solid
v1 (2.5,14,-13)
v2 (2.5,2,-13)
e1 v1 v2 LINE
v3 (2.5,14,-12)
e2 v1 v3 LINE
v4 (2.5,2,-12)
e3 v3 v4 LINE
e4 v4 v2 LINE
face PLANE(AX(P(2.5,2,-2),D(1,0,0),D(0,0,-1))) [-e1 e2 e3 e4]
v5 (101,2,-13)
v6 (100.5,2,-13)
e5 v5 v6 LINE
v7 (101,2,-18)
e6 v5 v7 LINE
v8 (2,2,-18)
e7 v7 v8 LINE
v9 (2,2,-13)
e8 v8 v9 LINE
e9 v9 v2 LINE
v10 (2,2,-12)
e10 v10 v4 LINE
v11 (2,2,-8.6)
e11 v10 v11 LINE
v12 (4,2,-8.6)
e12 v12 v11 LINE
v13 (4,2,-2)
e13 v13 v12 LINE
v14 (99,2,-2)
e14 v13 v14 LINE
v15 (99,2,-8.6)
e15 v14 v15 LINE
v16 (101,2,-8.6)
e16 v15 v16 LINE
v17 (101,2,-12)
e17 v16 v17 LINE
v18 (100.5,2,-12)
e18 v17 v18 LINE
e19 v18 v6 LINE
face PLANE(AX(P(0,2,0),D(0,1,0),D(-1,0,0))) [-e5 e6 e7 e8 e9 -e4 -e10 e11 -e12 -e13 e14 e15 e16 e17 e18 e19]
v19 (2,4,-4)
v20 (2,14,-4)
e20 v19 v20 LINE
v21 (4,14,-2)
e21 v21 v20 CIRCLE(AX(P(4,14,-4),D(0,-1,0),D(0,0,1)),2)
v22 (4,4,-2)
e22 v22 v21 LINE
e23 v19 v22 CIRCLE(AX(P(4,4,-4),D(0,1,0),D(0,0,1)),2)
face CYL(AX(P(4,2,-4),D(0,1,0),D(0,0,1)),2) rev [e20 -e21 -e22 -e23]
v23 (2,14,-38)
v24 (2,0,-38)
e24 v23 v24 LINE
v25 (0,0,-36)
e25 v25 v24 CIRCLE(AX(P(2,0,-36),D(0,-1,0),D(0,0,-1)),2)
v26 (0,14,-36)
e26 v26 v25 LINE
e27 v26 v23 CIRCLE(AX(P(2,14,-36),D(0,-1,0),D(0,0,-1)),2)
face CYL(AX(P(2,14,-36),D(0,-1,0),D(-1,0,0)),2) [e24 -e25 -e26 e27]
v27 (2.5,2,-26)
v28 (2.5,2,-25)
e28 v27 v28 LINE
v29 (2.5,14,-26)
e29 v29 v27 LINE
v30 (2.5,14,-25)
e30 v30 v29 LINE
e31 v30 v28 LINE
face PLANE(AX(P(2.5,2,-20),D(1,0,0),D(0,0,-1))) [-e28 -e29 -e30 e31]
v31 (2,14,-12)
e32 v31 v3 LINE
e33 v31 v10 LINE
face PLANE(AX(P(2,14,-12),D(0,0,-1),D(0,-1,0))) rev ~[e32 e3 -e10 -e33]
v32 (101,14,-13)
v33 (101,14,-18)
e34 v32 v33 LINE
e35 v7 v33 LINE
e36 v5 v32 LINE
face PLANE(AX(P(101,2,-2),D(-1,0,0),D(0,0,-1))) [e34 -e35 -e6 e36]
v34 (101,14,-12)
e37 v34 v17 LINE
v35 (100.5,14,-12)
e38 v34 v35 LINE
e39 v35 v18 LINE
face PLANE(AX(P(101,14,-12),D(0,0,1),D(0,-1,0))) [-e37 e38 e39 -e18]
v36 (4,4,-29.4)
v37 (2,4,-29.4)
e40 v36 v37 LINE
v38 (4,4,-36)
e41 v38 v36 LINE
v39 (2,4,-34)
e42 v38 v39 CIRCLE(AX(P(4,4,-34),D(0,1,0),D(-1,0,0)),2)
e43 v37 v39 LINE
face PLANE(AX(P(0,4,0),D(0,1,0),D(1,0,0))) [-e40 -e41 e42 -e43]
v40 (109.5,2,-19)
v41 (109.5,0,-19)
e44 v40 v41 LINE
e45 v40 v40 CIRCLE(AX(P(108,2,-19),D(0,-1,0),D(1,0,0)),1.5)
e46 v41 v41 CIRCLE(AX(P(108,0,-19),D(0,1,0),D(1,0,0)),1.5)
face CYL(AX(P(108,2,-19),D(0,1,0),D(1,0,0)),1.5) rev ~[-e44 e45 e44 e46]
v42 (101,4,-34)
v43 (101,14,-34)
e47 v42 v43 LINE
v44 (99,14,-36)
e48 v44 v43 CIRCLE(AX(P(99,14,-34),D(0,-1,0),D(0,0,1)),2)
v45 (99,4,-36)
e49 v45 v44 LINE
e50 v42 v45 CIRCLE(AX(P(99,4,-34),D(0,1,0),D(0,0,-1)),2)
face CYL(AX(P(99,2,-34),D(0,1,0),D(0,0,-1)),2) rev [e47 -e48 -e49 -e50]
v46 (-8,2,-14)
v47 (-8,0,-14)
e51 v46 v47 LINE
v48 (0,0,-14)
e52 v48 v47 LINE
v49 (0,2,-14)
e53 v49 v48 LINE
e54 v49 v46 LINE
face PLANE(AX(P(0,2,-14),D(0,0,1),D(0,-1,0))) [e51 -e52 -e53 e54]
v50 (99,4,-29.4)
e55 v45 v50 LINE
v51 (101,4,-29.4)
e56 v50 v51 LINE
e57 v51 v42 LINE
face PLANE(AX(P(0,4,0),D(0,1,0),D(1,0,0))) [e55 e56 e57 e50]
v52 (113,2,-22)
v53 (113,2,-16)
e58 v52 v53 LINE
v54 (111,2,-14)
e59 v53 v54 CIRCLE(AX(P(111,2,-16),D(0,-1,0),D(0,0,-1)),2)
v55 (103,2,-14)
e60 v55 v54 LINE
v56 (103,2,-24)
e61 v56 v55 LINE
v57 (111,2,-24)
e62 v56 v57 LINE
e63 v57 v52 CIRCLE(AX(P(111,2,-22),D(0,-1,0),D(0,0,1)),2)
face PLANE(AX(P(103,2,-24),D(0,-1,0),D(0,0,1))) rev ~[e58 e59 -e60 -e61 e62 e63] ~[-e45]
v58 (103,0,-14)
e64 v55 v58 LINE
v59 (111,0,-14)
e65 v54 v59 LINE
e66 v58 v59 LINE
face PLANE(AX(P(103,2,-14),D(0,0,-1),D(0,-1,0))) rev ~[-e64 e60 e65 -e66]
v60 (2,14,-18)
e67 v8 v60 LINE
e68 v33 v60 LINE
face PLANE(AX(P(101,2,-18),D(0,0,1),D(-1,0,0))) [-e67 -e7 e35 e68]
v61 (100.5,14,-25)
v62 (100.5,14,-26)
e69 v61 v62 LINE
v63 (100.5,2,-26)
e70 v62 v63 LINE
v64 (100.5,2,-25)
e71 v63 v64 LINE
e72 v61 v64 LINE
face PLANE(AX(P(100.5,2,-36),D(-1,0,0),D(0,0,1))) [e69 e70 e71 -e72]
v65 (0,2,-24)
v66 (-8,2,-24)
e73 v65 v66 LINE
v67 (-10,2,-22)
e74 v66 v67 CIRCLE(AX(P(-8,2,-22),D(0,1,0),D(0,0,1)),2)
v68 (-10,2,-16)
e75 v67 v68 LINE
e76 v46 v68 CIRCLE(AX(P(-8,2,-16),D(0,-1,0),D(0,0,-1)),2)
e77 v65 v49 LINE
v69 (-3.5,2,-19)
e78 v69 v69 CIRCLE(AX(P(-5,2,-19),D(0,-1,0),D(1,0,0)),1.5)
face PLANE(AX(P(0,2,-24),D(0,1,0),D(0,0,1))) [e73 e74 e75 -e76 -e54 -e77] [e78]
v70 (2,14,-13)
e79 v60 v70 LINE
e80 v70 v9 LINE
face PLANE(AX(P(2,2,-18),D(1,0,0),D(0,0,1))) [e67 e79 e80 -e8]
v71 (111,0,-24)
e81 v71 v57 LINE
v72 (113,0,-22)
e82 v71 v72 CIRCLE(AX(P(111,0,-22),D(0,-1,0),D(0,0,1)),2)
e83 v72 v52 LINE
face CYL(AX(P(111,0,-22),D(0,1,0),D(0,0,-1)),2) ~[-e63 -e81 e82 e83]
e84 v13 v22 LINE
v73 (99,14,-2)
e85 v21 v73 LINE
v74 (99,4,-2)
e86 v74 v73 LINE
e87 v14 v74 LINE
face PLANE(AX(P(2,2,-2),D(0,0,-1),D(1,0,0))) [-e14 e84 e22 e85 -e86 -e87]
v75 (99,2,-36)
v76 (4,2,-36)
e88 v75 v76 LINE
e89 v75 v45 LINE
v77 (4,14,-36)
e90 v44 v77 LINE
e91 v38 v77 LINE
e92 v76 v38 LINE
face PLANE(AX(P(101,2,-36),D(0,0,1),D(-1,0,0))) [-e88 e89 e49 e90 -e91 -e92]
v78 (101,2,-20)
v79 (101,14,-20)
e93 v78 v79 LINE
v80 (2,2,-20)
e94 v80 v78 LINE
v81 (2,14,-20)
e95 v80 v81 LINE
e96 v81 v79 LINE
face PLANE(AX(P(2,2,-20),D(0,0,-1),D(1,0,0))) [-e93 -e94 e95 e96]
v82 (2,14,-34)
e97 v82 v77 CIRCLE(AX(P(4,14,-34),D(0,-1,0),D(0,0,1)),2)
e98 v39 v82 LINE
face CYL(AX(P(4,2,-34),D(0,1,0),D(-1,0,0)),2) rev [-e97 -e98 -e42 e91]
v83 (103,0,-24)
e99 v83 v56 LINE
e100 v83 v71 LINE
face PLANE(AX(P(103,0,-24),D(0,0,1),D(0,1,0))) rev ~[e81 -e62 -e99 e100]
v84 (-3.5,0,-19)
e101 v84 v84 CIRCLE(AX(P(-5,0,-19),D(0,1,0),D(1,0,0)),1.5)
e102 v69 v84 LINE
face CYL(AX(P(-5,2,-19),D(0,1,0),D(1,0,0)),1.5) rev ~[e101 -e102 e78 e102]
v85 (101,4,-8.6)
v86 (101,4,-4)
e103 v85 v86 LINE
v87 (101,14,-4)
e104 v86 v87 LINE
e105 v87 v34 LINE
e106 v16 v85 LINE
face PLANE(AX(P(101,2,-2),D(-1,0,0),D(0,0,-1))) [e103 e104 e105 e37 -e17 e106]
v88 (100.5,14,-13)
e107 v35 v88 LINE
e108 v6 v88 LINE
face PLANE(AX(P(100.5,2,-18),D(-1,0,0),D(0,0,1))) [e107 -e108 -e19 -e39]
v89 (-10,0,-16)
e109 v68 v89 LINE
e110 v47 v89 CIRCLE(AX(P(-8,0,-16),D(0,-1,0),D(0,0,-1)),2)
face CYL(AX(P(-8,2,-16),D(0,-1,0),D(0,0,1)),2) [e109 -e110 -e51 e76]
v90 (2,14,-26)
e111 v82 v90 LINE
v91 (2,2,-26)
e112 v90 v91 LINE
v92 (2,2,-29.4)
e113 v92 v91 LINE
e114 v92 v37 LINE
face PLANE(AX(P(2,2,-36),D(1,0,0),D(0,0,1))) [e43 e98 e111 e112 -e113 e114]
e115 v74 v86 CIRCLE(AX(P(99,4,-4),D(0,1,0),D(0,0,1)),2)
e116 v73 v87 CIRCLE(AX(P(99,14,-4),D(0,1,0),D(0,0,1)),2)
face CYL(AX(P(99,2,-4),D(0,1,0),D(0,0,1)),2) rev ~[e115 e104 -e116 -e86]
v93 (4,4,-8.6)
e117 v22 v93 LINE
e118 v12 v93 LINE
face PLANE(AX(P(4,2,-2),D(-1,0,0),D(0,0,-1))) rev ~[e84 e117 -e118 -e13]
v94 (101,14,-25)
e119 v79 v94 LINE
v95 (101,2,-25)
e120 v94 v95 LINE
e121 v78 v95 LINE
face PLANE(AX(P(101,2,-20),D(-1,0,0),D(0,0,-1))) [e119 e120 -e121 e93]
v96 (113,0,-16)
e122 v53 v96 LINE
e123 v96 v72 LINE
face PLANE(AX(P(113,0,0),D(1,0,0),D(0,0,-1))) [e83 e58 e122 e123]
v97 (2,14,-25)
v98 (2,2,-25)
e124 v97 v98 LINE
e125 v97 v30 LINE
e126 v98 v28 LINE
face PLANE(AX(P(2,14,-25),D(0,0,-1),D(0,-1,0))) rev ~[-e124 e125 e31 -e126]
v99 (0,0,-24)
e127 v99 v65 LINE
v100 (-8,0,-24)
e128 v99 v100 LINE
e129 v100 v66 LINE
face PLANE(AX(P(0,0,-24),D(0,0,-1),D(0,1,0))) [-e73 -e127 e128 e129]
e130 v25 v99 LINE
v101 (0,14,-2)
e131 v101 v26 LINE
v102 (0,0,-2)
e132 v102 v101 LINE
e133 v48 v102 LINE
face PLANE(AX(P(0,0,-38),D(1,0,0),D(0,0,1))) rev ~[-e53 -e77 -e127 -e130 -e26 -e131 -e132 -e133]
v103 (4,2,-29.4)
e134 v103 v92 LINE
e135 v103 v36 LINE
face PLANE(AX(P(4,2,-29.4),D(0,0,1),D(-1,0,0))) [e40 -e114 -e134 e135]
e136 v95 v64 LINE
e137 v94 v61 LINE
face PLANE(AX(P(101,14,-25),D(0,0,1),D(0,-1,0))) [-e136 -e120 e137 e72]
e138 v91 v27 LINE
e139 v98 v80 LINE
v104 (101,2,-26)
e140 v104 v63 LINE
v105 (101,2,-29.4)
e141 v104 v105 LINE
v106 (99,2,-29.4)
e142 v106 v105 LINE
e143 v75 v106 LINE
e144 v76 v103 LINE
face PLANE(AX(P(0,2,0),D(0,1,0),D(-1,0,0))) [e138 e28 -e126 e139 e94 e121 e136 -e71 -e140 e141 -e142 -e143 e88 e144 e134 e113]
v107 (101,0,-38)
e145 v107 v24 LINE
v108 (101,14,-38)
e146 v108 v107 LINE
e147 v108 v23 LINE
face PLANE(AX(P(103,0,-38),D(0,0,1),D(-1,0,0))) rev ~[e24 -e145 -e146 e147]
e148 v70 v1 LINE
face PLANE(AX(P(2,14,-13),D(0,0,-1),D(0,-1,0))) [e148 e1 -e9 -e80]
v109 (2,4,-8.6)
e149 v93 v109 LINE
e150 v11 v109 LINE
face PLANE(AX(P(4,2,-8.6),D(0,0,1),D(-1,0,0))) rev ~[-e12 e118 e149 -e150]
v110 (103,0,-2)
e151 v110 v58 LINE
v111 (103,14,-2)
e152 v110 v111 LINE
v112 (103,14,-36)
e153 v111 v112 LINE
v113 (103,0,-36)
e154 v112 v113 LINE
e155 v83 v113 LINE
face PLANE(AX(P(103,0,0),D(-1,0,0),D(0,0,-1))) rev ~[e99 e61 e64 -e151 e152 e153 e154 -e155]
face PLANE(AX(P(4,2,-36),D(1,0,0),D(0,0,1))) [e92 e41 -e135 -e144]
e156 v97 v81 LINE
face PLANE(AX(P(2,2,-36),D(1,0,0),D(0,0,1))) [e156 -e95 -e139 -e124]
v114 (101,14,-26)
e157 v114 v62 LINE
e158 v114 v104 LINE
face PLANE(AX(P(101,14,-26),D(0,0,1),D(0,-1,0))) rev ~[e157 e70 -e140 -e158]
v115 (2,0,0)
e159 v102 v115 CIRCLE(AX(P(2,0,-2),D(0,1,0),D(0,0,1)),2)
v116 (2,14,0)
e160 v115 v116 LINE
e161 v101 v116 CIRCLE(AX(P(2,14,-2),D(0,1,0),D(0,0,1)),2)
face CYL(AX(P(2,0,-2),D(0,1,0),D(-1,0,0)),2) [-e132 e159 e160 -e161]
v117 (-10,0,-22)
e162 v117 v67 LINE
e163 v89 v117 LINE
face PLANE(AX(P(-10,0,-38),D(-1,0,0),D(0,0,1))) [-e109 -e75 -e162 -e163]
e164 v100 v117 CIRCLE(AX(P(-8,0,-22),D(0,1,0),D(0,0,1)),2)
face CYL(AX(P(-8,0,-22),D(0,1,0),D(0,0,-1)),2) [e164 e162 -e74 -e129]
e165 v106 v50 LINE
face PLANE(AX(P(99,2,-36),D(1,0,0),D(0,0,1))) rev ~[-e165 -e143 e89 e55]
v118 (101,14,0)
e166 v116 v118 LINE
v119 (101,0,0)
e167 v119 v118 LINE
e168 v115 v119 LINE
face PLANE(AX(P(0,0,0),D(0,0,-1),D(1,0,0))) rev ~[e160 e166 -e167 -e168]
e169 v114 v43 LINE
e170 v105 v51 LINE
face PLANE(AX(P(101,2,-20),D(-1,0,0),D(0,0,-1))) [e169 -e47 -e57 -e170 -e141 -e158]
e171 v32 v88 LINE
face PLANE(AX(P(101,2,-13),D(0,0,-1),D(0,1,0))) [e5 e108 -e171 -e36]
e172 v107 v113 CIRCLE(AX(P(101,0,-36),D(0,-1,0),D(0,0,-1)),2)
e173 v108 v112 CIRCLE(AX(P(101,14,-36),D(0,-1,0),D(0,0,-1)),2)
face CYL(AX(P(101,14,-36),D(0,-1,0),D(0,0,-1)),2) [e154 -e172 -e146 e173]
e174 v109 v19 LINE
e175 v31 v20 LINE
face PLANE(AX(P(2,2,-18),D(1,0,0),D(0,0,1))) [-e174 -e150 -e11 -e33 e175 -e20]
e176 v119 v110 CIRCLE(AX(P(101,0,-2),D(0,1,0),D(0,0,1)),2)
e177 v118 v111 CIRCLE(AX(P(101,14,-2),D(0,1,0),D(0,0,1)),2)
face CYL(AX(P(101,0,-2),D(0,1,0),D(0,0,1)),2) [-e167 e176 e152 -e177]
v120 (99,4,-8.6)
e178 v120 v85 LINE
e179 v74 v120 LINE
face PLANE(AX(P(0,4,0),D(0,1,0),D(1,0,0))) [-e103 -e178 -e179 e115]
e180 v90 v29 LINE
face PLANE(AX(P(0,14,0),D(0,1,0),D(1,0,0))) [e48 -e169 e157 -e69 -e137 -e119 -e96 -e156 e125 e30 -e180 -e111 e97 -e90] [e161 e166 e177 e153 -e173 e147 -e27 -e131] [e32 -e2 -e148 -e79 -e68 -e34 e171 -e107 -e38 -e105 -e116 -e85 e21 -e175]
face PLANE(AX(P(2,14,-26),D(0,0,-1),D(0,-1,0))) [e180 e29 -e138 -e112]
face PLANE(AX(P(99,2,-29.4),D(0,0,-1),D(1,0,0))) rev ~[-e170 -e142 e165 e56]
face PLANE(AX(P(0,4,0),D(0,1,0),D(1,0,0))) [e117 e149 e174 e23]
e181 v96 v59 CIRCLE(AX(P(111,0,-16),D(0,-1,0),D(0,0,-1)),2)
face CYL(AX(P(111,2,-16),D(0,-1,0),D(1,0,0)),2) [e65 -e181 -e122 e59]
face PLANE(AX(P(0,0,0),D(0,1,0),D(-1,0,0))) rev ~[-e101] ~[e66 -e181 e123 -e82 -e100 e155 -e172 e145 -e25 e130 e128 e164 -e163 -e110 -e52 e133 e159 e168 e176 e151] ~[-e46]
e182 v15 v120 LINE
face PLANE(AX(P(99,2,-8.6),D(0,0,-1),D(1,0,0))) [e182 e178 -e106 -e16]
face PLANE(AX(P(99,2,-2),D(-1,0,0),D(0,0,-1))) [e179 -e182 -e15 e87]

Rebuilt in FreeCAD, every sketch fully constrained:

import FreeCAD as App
import Part
import Sketcher
Q = App.Units.Quantity


def edges_at(feature, points):
    """Names of the edges that pass closest to the given points."""
    edges = feature.Shape.Edges
    near = lambda p: min(range(len(edges)), key=lambda i: edges[i].distToShape(Part.Vertex(*p))[0])
    return sorted({f"Edge{near(p) + 1}" for p in points})

doc = App.newDocument("Part")
body = doc.addObject("PartDesign::Body", "Body")

# Sketch on XZ plane
sketch1 = doc.addObject("Sketcher::SketchObject", "Sketch")
body.addObject(sketch1)
sketch1.AttachmentSupport = (doc.XZ_Plane, [""])
sketch1.MapMode = "FlatFace"
sketch1.addGeometry(Part.LineSegment(App.Vector(0, -38, 0), App.Vector(0, 0, 0)), False)
sketch1.addGeometry(Part.LineSegment(App.Vector(0, 0, 0), App.Vector(103, 0, 0)), False)
sketch1.addGeometry(Part.LineSegment(App.Vector(103, 0, 0), App.Vector(103, -38, 0)), False)
sketch1.addGeometry(Part.LineSegment(App.Vector(103, -38, 0), App.Vector(0, -38, 0)), False)
sketch1.addConstraint(Sketcher.Constraint("Coincident", 0, 2, 1, 1))
sketch1.addConstraint(Sketcher.Constraint("Coincident", 1, 2, 2, 1))
sketch1.addConstraint(Sketcher.Constraint("Coincident", 2, 2, 3, 1))
sketch1.addConstraint(Sketcher.Constraint("Coincident", 3, 2, 0, 1))
sketch1.addConstraint(Sketcher.Constraint("Vertical", 0))
sketch1.addConstraint(Sketcher.Constraint("Horizontal", 1))
sketch1.addConstraint(Sketcher.Constraint("Vertical", 2))
sketch1.addConstraint(Sketcher.Constraint("Horizontal", 3))
sketch1.addConstraint(Sketcher.Constraint("Coincident", 0, 2, -1, 1))
sketch1.addConstraint(Sketcher.Constraint("DistanceX", 1, 1, 1, 2, Q("103 mm")))
sketch1.addConstraint(Sketcher.Constraint("DistanceY", 0, 1, 0, 2, Q("38 mm")))
pad1 = doc.addObject("PartDesign::Pad", "Pad")
body.addObject(pad1)
pad1.Profile = sketch1
pad1.Length = 2
pad1.Reversed = True

# Sketch on XZ plane
sketch2 = doc.addObject("Sketcher::SketchObject", "Sketch001")
body.addObject(sketch2)
sketch2.AttachmentSupport = (doc.XZ_Plane, [""])
sketch2.MapMode = "FlatFace"
sketch2.AttachmentOffset = App.Placement(App.Vector(0, 0, -2), App.Rotation())
sketch2.addGeometry(Part.LineSegment(App.Vector(0, 0, 0), App.Vector(103, 0, 0)), False)
sketch2.addGeometry(Part.LineSegment(App.Vector(103, 0, 0), App.Vector(103, -38, 0)), False)
sketch2.addGeometry(Part.LineSegment(App.Vector(103, -38, 0), App.Vector(0, -38, 0)), False)
sketch2.addGeometry(Part.LineSegment(App.Vector(0, -38, 0), App.Vector(0, 0, 0)), False)
sketch2.addGeometry(Part.LineSegment(App.Vector(101, -2, 0), App.Vector(2, -2, 0)), False)
sketch2.addGeometry(Part.LineSegment(App.Vector(2, -2, 0), App.Vector(2, -18, 0)), False)
sketch2.addGeometry(Part.LineSegment(App.Vector(2, -18, 0), App.Vector(101, -18, 0)), False)
sketch2.addGeometry(Part.LineSegment(App.Vector(101, -18, 0), App.Vector(101, -2, 0)), False)
sketch2.addGeometry(Part.LineSegment(App.Vector(2, -20, 0), App.Vector(2, -36, 0)), False)
sketch2.addGeometry(Part.LineSegment(App.Vector(2, -36, 0), App.Vector(101, -36, 0)), False)
sketch2.addGeometry(Part.LineSegment(App.Vector(101, -36, 0), App.Vector(101, -20, 0)), False)
sketch2.addGeometry(Part.LineSegment(App.Vector(101, -20, 0), App.Vector(2, -20, 0)), False)
sketch2.addConstraint(Sketcher.Constraint("Coincident", 0, 2, 1, 1))
sketch2.addConstraint(Sketcher.Constraint("Coincident", 1, 2, 2, 1))
sketch2.addConstraint(Sketcher.Constraint("Coincident", 2, 2, 3, 1))
sketch2.addConstraint(Sketcher.Constraint("Coincident", 3, 2, 0, 1))
sketch2.addConstraint(Sketcher.Constraint("Coincident", 4, 2, 5, 1))
sketch2.addConstraint(Sketcher.Constraint("Coincident", 5, 2, 6, 1))
sketch2.addConstraint(Sketcher.Constraint("Coincident", 6, 2, 7, 1))
sketch2.addConstraint(Sketcher.Constraint("Coincident", 7, 2, 4, 1))
sketch2.addConstraint(Sketcher.Constraint("Coincident", 8, 2, 9, 1))
sketch2.addConstraint(Sketcher.Constraint("Coincident", 9, 2, 10, 1))
sketch2.addConstraint(Sketcher.Constraint("Coincident", 10, 2, 11, 1))
sketch2.addConstraint(Sketcher.Constraint("Coincident", 11, 2, 8, 1))
sketch2.addConstraint(Sketcher.Constraint("Horizontal", 0))
sketch2.addConstraint(Sketcher.Constraint("Vertical", 1))
sketch2.addConstraint(Sketcher.Constraint("Horizontal", 2))
sketch2.addConstraint(Sketcher.Constraint("Vertical", 3))
sketch2.addConstraint(Sketcher.Constraint("Horizontal", 4))
sketch2.addConstraint(Sketcher.Constraint("Vertical", 5))
sketch2.addConstraint(Sketcher.Constraint("Horizontal", 6))
sketch2.addConstraint(Sketcher.Constraint("Vertical", 7))
sketch2.addConstraint(Sketcher.Constraint("Vertical", 8))
sketch2.addConstraint(Sketcher.Constraint("Horizontal", 9))
sketch2.addConstraint(Sketcher.Constraint("Vertical", 10))
sketch2.addConstraint(Sketcher.Constraint("Horizontal", 11))
sketch2.addConstraint(Sketcher.Constraint("Coincident", 3, 2, -1, 1))
sketch2.addConstraint(Sketcher.Constraint("Vertical", 5, 2, 8, 2))
sketch2.addConstraint(Sketcher.Constraint("Vertical", 7, 2, 9, 2))
sketch2.addConstraint(Sketcher.Constraint("Equal", 7, 8))
sketch2.addConstraint(Sketcher.Constraint("DistanceX", 4, 2, 4, 1, Q("99 mm")))
sketch2.addConstraint(Sketcher.Constraint("DistanceY", 5, 2, 5, 1, Q("16 mm")))
sketch2.addConstraint(Sketcher.Constraint("DistanceX", -1, 1, 4, 2, Q("2 mm")))
sketch2.addConstraint(Sketcher.Constraint("DistanceY", 4, 2, -1, 1, Q("2 mm")))
sketch2.addConstraint(Sketcher.Constraint("DistanceX", 6, 2, 0, 2, Q("2 mm")))
sketch2.addConstraint(Sketcher.Constraint("DistanceY", 2, 2, 8, 2, Q("2 mm")))
sketch2.addConstraint(Sketcher.Constraint("DistanceY", 10, 2, 6, 2, Q("2 mm")))
pad2 = doc.addObject("PartDesign::Pad", "Pad001")
body.addObject(pad2)
pad2.Profile = sketch2
pad2.Length = 12
pad2.Reversed = True

# Sketch on YZ plane
sketch3 = doc.addObject("Sketcher::SketchObject", "Sketch002")
body.addObject(sketch3)
sketch3.AttachmentSupport = (doc.YZ_Plane, [""])
sketch3.MapMode = "FlatFace"
sketch3.AttachmentOffset = App.Placement(App.Vector(0, 0, 101), App.Rotation())
sketch3.addGeometry(Part.LineSegment(App.Vector(2, -12, 0), App.Vector(14, -12, 0)), False)
sketch3.addGeometry(Part.LineSegment(App.Vector(14, -12, 0), App.Vector(14, -13, 0)), False)
sketch3.addGeometry(Part.LineSegment(App.Vector(14, -13, 0), App.Vector(2, -13, 0)), False)
sketch3.addGeometry(Part.LineSegment(App.Vector(2, -13, 0), App.Vector(2, -12, 0)), False)
sketch3.addConstraint(Sketcher.Constraint("Coincident", 0, 2, 1, 1))
sketch3.addConstraint(Sketcher.Constraint("Coincident", 1, 2, 2, 1))
sketch3.addConstraint(Sketcher.Constraint("Coincident", 2, 2, 3, 1))
sketch3.addConstraint(Sketcher.Constraint("Coincident", 3, 2, 0, 1))
sketch3.addConstraint(Sketcher.Constraint("Horizontal", 0))
sketch3.addConstraint(Sketcher.Constraint("Vertical", 1))
sketch3.addConstraint(Sketcher.Constraint("Horizontal", 2))
sketch3.addConstraint(Sketcher.Constraint("Vertical", 3))
sketch3.addConstraint(Sketcher.Constraint("DistanceX", 0, 1, 0, 2, Q("12 mm")))
sketch3.addConstraint(Sketcher.Constraint("DistanceY", 1, 2, 1, 1, Q("1 mm")))
sketch3.addConstraint(Sketcher.Constraint("DistanceY", 0, 2, -1, 1, Q("12 mm")))
sketch3.addConstraint(Sketcher.Constraint("DistanceX", -1, 1, 0, 2, Q("14 mm")))
pad3 = doc.addObject("PartDesign::Pad", "Pad002")
body.addObject(pad3)
pad3.Profile = sketch3
pad3.Length = 0.5
pad3.Reversed = True

# Sketch on YZ plane
sketch4 = doc.addObject("Sketcher::SketchObject", "Sketch003")
body.addObject(sketch4)
sketch4.AttachmentSupport = (doc.YZ_Plane, [""])
sketch4.MapMode = "FlatFace"
sketch4.AttachmentOffset = App.Placement(App.Vector(0, 0, 2), App.Rotation())
sketch4.addGeometry(Part.LineSegment(App.Vector(2, -13, 0), App.Vector(14, -13, 0)), False)
sketch4.addGeometry(Part.LineSegment(App.Vector(14, -13, 0), App.Vector(14, -12, 0)), False)
sketch4.addGeometry(Part.LineSegment(App.Vector(14, -12, 0), App.Vector(2, -12, 0)), False)
sketch4.addGeometry(Part.LineSegment(App.Vector(2, -12, 0), App.Vector(2, -13, 0)), False)
sketch4.addConstraint(Sketcher.Constraint("Coincident", 0, 2, 1, 1))
sketch4.addConstraint(Sketcher.Constraint("Coincident", 1, 2, 2, 1))
sketch4.addConstraint(Sketcher.Constraint("Coincident", 2, 2, 3, 1))
sketch4.addConstraint(Sketcher.Constraint("Coincident", 3, 2, 0, 1))
sketch4.addConstraint(Sketcher.Constraint("Horizontal", 0))
sketch4.addConstraint(Sketcher.Constraint("Vertical", 1))
sketch4.addConstraint(Sketcher.Constraint("Horizontal", 2))
sketch4.addConstraint(Sketcher.Constraint("Vertical", 3))
sketch4.addConstraint(Sketcher.Constraint("DistanceX", 0, 1, 0, 2, Q("12 mm")))
sketch4.addConstraint(Sketcher.Constraint("DistanceY", 1, 1, 1, 2, Q("1 mm")))
sketch4.addConstraint(Sketcher.Constraint("DistanceY", 1, 2, -1, 1, Q("12 mm")))
sketch4.addConstraint(Sketcher.Constraint("DistanceX", -1, 1, 0, 2, Q("14 mm")))
pad4 = doc.addObject("PartDesign::Pad", "Pad003")
body.addObject(pad4)
pad4.Profile = sketch4
pad4.Length = 0.5

# Sketch on YZ plane
sketch5 = doc.addObject("Sketcher::SketchObject", "Sketch004")
body.addObject(sketch5)
sketch5.AttachmentSupport = (doc.YZ_Plane, [""])
sketch5.MapMode = "FlatFace"
sketch5.AttachmentOffset = App.Placement(App.Vector(0, 0, 2), App.Rotation())
sketch5.addGeometry(Part.LineSegment(App.Vector(14, -26, 0), App.Vector(14, -25, 0)), False)
sketch5.addGeometry(Part.LineSegment(App.Vector(14, -25, 0), App.Vector(2, -25, 0)), False)
sketch5.addGeometry(Part.LineSegment(App.Vector(2, -25, 0), App.Vector(2, -26, 0)), False)
sketch5.addGeometry(Part.LineSegment(App.Vector(2, -26, 0), App.Vector(14, -26, 0)), False)
sketch5.addConstraint(Sketcher.Constraint("Coincident", 0, 2, 1, 1))
sketch5.addConstraint(Sketcher.Constraint("Coincident", 1, 2, 2, 1))
sketch5.addConstraint(Sketcher.Constraint("Coincident", 2, 2, 3, 1))
sketch5.addConstraint(Sketcher.Constraint("Coincident", 3, 2, 0, 1))
sketch5.addConstraint(Sketcher.Constraint("Vertical", 0))
sketch5.addConstraint(Sketcher.Constraint("Horizontal", 1))
sketch5.addConstraint(Sketcher.Constraint("Vertical", 2))
sketch5.addConstraint(Sketcher.Constraint("Horizontal", 3))
sketch5.addConstraint(Sketcher.Constraint("DistanceX", 1, 2, 1, 1, Q("12 mm")))
sketch5.addConstraint(Sketcher.Constraint("DistanceY", 0, 1, 0, 2, Q("1 mm")))
sketch5.addConstraint(Sketcher.Constraint("DistanceX", -1, 1, 0, 2, Q("14 mm")))
sketch5.addConstraint(Sketcher.Constraint("DistanceY", 0, 2, -1, 1, Q("25 mm")))
pad5 = doc.addObject("PartDesign::Pad", "Pad004")
body.addObject(pad5)
pad5.Profile = sketch5
pad5.Length = 0.5

# Sketch on YZ plane
sketch6 = doc.addObject("Sketcher::SketchObject", "Sketch005")
body.addObject(sketch6)
sketch6.AttachmentSupport = (doc.YZ_Plane, [""])
sketch6.MapMode = "FlatFace"
sketch6.AttachmentOffset = App.Placement(App.Vector(0, 0, 101), App.Rotation())
sketch6.addGeometry(Part.LineSegment(App.Vector(2, -25, 0), App.Vector(14, -25, 0)), False)
sketch6.addGeometry(Part.LineSegment(App.Vector(14, -25, 0), App.Vector(14, -26, 0)), False)
sketch6.addGeometry(Part.LineSegment(App.Vector(14, -26, 0), App.Vector(2, -26, 0)), False)
sketch6.addGeometry(Part.LineSegment(App.Vector(2, -26, 0), App.Vector(2, -25, 0)), False)
sketch6.addConstraint(Sketcher.Constraint("Coincident", 0, 2, 1, 1))
sketch6.addConstraint(Sketcher.Constraint("Coincident", 1, 2, 2, 1))
sketch6.addConstraint(Sketcher.Constraint("Coincident", 2, 2, 3, 1))
sketch6.addConstraint(Sketcher.Constraint("Coincident", 3, 2, 0, 1))
sketch6.addConstraint(Sketcher.Constraint("Horizontal", 0))
sketch6.addConstraint(Sketcher.Constraint("Vertical", 1))
sketch6.addConstraint(Sketcher.Constraint("Horizontal", 2))
sketch6.addConstraint(Sketcher.Constraint("Vertical", 3))
sketch6.addConstraint(Sketcher.Constraint("DistanceX", 0, 1, 0, 2, Q("12 mm")))
sketch6.addConstraint(Sketcher.Constraint("DistanceY", 1, 2, 1, 1, Q("1 mm")))
sketch6.addConstraint(Sketcher.Constraint("DistanceX", -1, 1, 0, 2, Q("14 mm")))
sketch6.addConstraint(Sketcher.Constraint("DistanceY", 0, 2, -1, 1, Q("25 mm")))
pad6 = doc.addObject("PartDesign::Pad", "Pad005")
body.addObject(pad6)
pad6.Profile = sketch6
pad6.Length = 0.5
pad6.Reversed = True

# Sketch on YZ plane
sketch7 = doc.addObject("Sketcher::SketchObject", "Sketch006")
body.addObject(sketch7)
sketch7.AttachmentSupport = (doc.YZ_Plane, [""])
sketch7.MapMode = "FlatFace"
sketch7.AttachmentOffset = App.Placement(App.Vector(0, 0, 103), App.Rotation())
sketch7.addGeometry(Part.LineSegment(App.Vector(2, -14, 0), App.Vector(0, -14, 0)), False)
sketch7.addGeometry(Part.LineSegment(App.Vector(0, -14, 0), App.Vector(0, -24, 0)), False)
sketch7.addGeometry(Part.LineSegment(App.Vector(0, -24, 0), App.Vector(2, -24, 0)), False)
sketch7.addGeometry(Part.LineSegment(App.Vector(2, -24, 0), App.Vector(2, -14, 0)), False)
sketch7.addConstraint(Sketcher.Constraint("Coincident", 0, 2, 1, 1))
sketch7.addConstraint(Sketcher.Constraint("Coincident", 1, 2, 2, 1))
sketch7.addConstraint(Sketcher.Constraint("Coincident", 2, 2, 3, 1))
sketch7.addConstraint(Sketcher.Constraint("Coincident", 3, 2, 0, 1))
sketch7.addConstraint(Sketcher.Constraint("Horizontal", 0))
sketch7.addConstraint(Sketcher.Constraint("Vertical", 1))
sketch7.addConstraint(Sketcher.Constraint("Horizontal", 2))
sketch7.addConstraint(Sketcher.Constraint("Vertical", 3))
sketch7.addConstraint(Sketcher.Constraint("PointOnObject", 0, 2, -2))
sketch7.addConstraint(Sketcher.Constraint("DistanceX", 0, 2, 0, 1, Q("2 mm")))
sketch7.addConstraint(Sketcher.Constraint("DistanceY", 1, 2, 1, 1, Q("10 mm")))
sketch7.addConstraint(Sketcher.Constraint("DistanceY", 0, 2, -1, 1, Q("14 mm")))
pad7 = doc.addObject("PartDesign::Pad", "Pad006")
body.addObject(pad7)
pad7.Profile = sketch7
pad7.Length = 10

# Sketch on XZ plane
sketch8 = doc.addObject("Sketcher::SketchObject", "Sketch007")
body.addObject(sketch8)
sketch8.AttachmentSupport = (doc.XZ_Plane, [""])
sketch8.MapMode = "FlatFace"
sketch8.AttachmentOffset = App.Placement(App.Vector(0, 0, -2), App.Rotation())
sketch8.addGeometry(Part.Circle(App.Vector(108, -19, 0), App.Vector(0, 0, 1), 1.5), False)
sketch8.addConstraint(Sketcher.Constraint("Diameter", 0, Q("3 mm")))
sketch8.addConstraint(Sketcher.Constraint("DistanceX", -1, 1, 0, 3, Q("108 mm")))
sketch8.addConstraint(Sketcher.Constraint("DistanceY", 0, 3, -1, 1, Q("19 mm")))
pocket1 = doc.addObject("PartDesign::Pocket", "Pocket")
body.addObject(pocket1)
pocket1.Profile = sketch8
pocket1.Length = 2
pocket1.Reversed = True

# Sketch on YZ plane
sketch9 = doc.addObject("Sketcher::SketchObject", "Sketch008")
body.addObject(sketch9)
sketch9.AttachmentSupport = (doc.YZ_Plane, [""])
sketch9.MapMode = "FlatFace"
sketch9.addGeometry(Part.LineSegment(App.Vector(0, -24, 0), App.Vector(0, -14, 0)), False)
sketch9.addGeometry(Part.LineSegment(App.Vector(0, -14, 0), App.Vector(2, -14, 0)), False)
sketch9.addGeometry(Part.LineSegment(App.Vector(2, -14, 0), App.Vector(2, -24, 0)), False)
sketch9.addGeometry(Part.LineSegment(App.Vector(2, -24, 0), App.Vector(0, -24, 0)), False)
sketch9.addConstraint(Sketcher.Constraint("Coincident", 0, 2, 1, 1))
sketch9.addConstraint(Sketcher.Constraint("Coincident", 1, 2, 2, 1))
sketch9.addConstraint(Sketcher.Constraint("Coincident", 2, 2, 3, 1))
sketch9.addConstraint(Sketcher.Constraint("Coincident", 3, 2, 0, 1))
sketch9.addConstraint(Sketcher.Constraint("Vertical", 0))
sketch9.addConstraint(Sketcher.Constraint("Horizontal", 1))
sketch9.addConstraint(Sketcher.Constraint("Vertical", 2))
sketch9.addConstraint(Sketcher.Constraint("Horizontal", 3))
sketch9.addConstraint(Sketcher.Constraint("PointOnObject", 0, 2, -2))
sketch9.addConstraint(Sketcher.Constraint("DistanceX", 1, 1, 1, 2, Q("2 mm")))
sketch9.addConstraint(Sketcher.Constraint("DistanceY", 0, 1, 0, 2, Q("10 mm")))
sketch9.addConstraint(Sketcher.Constraint("DistanceY", 0, 2, -1, 1, Q("14 mm")))
pad8 = doc.addObject("PartDesign::Pad", "Pad007")
body.addObject(pad8)
pad8.Profile = sketch9
pad8.Length = 10
pad8.Reversed = True

# Sketch on XZ plane
sketch10 = doc.addObject("Sketcher::SketchObject", "Sketch009")
body.addObject(sketch10)
sketch10.AttachmentSupport = (doc.XZ_Plane, [""])
sketch10.MapMode = "FlatFace"
sketch10.AttachmentOffset = App.Placement(App.Vector(0, 0, -2), App.Rotation())
sketch10.addGeometry(Part.Circle(App.Vector(-5, -19, 0), App.Vector(0, 0, 1), 1.5), False)
sketch10.addConstraint(Sketcher.Constraint("Diameter", 0, Q("3 mm")))
sketch10.addConstraint(Sketcher.Constraint("DistanceX", 0, 3, -1, 1, Q("5 mm")))
sketch10.addConstraint(Sketcher.Constraint("DistanceY", 0, 3, -1, 1, Q("19 mm")))
pocket2 = doc.addObject("PartDesign::Pocket", "Pocket001")
body.addObject(pocket2)
pocket2.Profile = sketch10
pocket2.Length = 2
pocket2.Reversed = True
doc.recompute()

fillet = doc.addObject("PartDesign::Fillet", "Fillet")
body.addObject(fillet)
fillet.Base = (pocket2, edges_at(pocket2, [
    (0, 7, 0),
    (103, 7, 0),
    (103, 7, -38),
    (113, 1, -14),
    (113, 1, -24),
    (0, 7, -38),
    (-10, 1, -24),
    (-10, 1, -14),
    (2, 8, -36),
    (101, 8, -36),
    (101, 8, -2),
    (2, 8, -2),
]))
fillet.Radius = 2

# Sketch on XZ plane
sketch11 = doc.addObject("Sketcher::SketchObject", "Sketch010")
body.addObject(sketch11)
sketch11.AttachmentSupport = (doc.XZ_Plane, [""])
sketch11.MapMode = "FlatFace"
sketch11.AttachmentOffset = App.Placement(App.Vector(0, 0, -2), App.Rotation())
sketch11.addGeometry(Part.LineSegment(App.Vector(101, -29.4, 0), App.Vector(101, -36, 0)), False)
sketch11.addGeometry(Part.LineSegment(App.Vector(101, -36, 0), App.Vector(99, -36, 0)), False)
sketch11.addGeometry(Part.LineSegment(App.Vector(99, -36, 0), App.Vector(99, -29.4, 0)), False)
sketch11.addGeometry(Part.LineSegment(App.Vector(99, -29.4, 0), App.Vector(101, -29.4, 0)), False)
sketch11.addGeometry(Part.LineSegment(App.Vector(4, -36, 0), App.Vector(2, -36, 0)), False)
sketch11.addGeometry(Part.LineSegment(App.Vector(2, -36, 0), App.Vector(2, -29.4, 0)), False)
sketch11.addGeometry(Part.LineSegment(App.Vector(2, -29.4, 0), App.Vector(4, -29.4, 0)), False)
sketch11.addGeometry(Part.LineSegment(App.Vector(4, -29.4, 0), App.Vector(4, -36, 0)), False)
sketch11.addGeometry(Part.LineSegment(App.Vector(2, -8.6, 0), App.Vector(2, -2, 0)), False)
sketch11.addGeometry(Part.LineSegment(App.Vector(2, -2, 0), App.Vector(4, -2, 0)), False)
sketch11.addGeometry(Part.LineSegment(App.Vector(4, -2, 0), App.Vector(4, -8.6, 0)), False)
sketch11.addGeometry(Part.LineSegment(App.Vector(4, -8.6, 0), App.Vector(2, -8.6, 0)), False)
sketch11.addGeometry(Part.LineSegment(App.Vector(99, -2, 0), App.Vector(101, -2, 0)), False)
sketch11.addGeometry(Part.LineSegment(App.Vector(101, -2, 0), App.Vector(101, -8.6, 0)), False)
sketch11.addGeometry(Part.LineSegment(App.Vector(101, -8.6, 0), App.Vector(99, -8.6, 0)), False)
sketch11.addGeometry(Part.LineSegment(App.Vector(99, -8.6, 0), App.Vector(99, -2, 0)), False)
sketch11.addConstraint(Sketcher.Constraint("Coincident", 0, 2, 1, 1))
sketch11.addConstraint(Sketcher.Constraint("Coincident", 1, 2, 2, 1))
sketch11.addConstraint(Sketcher.Constraint("Coincident", 2, 2, 3, 1))
sketch11.addConstraint(Sketcher.Constraint("Coincident", 3, 2, 0, 1))
sketch11.addConstraint(Sketcher.Constraint("Coincident", 4, 2, 5, 1))
sketch11.addConstraint(Sketcher.Constraint("Coincident", 5, 2, 6, 1))
sketch11.addConstraint(Sketcher.Constraint("Coincident", 6, 2, 7, 1))
sketch11.addConstraint(Sketcher.Constraint("Coincident", 7, 2, 4, 1))
sketch11.addConstraint(Sketcher.Constraint("Coincident", 8, 2, 9, 1))
sketch11.addConstraint(Sketcher.Constraint("Coincident", 9, 2, 10, 1))
sketch11.addConstraint(Sketcher.Constraint("Coincident", 10, 2, 11, 1))
sketch11.addConstraint(Sketcher.Constraint("Coincident", 11, 2, 8, 1))
sketch11.addConstraint(Sketcher.Constraint("Coincident", 12, 2, 13, 1))
sketch11.addConstraint(Sketcher.Constraint("Coincident", 13, 2, 14, 1))
sketch11.addConstraint(Sketcher.Constraint("Coincident", 14, 2, 15, 1))
sketch11.addConstraint(Sketcher.Constraint("Coincident", 15, 2, 12, 1))
sketch11.addConstraint(Sketcher.Constraint("Vertical", 0))
sketch11.addConstraint(Sketcher.Constraint("Horizontal", 1))
sketch11.addConstraint(Sketcher.Constraint("Vertical", 2))
sketch11.addConstraint(Sketcher.Constraint("Horizontal", 3))
sketch11.addConstraint(Sketcher.Constraint("Horizontal", 4))
sketch11.addConstraint(Sketcher.Constraint("Vertical", 5))
sketch11.addConstraint(Sketcher.Constraint("Horizontal", 6))
sketch11.addConstraint(Sketcher.Constraint("Vertical", 7))
sketch11.addConstraint(Sketcher.Constraint("Vertical", 8))
sketch11.addConstraint(Sketcher.Constraint("Horizontal", 9))
sketch11.addConstraint(Sketcher.Constraint("Vertical", 10))
sketch11.addConstraint(Sketcher.Constraint("Horizontal", 11))
sketch11.addConstraint(Sketcher.Constraint("Horizontal", 12))
sketch11.addConstraint(Sketcher.Constraint("Vertical", 13))
sketch11.addConstraint(Sketcher.Constraint("Horizontal", 14))
sketch11.addConstraint(Sketcher.Constraint("Vertical", 15))
sketch11.addConstraint(Sketcher.Constraint("Horizontal", 1, 2, 4, 2))
sketch11.addConstraint(Sketcher.Constraint("Horizontal", 3, 2, 5, 2))
sketch11.addConstraint(Sketcher.Constraint("Horizontal", 9, 2, 12, 2))
sketch11.addConstraint(Sketcher.Constraint("Horizontal", 11, 2, 13, 2))
sketch11.addConstraint(Sketcher.Constraint("Vertical", 5, 2, 8, 2))
sketch11.addConstraint(Sketcher.Constraint("Vertical", 7, 2, 9, 2))
sketch11.addConstraint(Sketcher.Constraint("Vertical", 3, 2, 12, 2))
sketch11.addConstraint(Sketcher.Constraint("Vertical", 2, 2, 14, 2))
sketch11.addConstraint(Sketcher.Constraint("Equal", 3, 4))
sketch11.addConstraint(Sketcher.Constraint("Equal", 7, 8))
sketch11.addConstraint(Sketcher.Constraint("DistanceX", 1, 2, 1, 1, Q("2 mm")))
sketch11.addConstraint(Sketcher.Constraint("DistanceY", 0, 2, 0, 1, Q("6.6 mm")))
sketch11.addConstraint(Sketcher.Constraint("DistanceX", -1, 1, 4, 2, Q("2 mm")))
sketch11.addConstraint(Sketcher.Constraint("DistanceY", 8, 2, -1, 1, Q("2 mm")))
sketch11.addConstraint(Sketcher.Constraint("DistanceX", -1, 1, 0, 2, Q("101 mm")))
sketch11.addConstraint(Sketcher.Constraint("DistanceY", 0, 2, -1, 1, Q("36 mm")))
pad9 = doc.addObject("PartDesign::Pad", "Pad008")
body.addObject(pad9)
pad9.Profile = sketch11
pad9.Length = 2
pad9.Reversed = True

doc.recompute()
